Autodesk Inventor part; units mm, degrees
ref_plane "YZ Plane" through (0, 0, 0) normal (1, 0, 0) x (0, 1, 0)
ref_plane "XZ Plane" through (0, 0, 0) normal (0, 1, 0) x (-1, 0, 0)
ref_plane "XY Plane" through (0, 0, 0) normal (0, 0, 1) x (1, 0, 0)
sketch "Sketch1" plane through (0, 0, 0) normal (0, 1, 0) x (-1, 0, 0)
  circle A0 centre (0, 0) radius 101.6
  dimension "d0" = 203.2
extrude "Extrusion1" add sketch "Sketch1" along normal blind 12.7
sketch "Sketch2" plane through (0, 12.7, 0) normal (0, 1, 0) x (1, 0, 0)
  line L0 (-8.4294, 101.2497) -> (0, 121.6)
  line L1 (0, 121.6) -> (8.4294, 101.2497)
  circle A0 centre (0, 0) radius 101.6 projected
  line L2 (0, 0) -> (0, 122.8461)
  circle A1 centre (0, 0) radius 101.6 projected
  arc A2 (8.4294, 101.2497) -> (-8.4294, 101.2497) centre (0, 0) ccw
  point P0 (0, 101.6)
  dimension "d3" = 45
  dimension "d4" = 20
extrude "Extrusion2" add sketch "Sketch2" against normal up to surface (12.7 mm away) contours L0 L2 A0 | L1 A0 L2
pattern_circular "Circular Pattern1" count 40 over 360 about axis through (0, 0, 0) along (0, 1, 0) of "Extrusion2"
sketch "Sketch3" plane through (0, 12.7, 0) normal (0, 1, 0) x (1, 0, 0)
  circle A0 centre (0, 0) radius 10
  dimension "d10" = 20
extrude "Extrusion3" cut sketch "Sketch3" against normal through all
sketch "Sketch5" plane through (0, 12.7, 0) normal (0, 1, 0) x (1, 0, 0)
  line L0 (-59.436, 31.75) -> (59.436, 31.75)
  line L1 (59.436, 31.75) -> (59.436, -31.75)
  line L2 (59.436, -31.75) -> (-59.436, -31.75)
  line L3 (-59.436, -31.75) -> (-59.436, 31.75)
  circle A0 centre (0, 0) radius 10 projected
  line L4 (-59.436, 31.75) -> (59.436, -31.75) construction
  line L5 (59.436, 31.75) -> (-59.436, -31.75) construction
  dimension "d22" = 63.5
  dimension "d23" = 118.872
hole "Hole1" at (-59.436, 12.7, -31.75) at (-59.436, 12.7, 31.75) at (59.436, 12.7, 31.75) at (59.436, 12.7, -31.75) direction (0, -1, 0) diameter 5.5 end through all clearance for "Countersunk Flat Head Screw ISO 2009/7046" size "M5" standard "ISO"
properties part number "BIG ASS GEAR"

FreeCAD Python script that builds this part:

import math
import FreeCAD as App
import Part
import Sketcher
Q = App.Units.Quantity

doc = App.newDocument("Part")
body = doc.addObject("PartDesign::Body", "Body")

# Sketch on XZ plane
sketch1 = doc.addObject("Sketcher::SketchObject", "Sketch")
body.addObject(sketch1)
sketch1.AttachmentSupport = (doc.XZ_Plane, [""])
sketch1.MapMode = "FlatFace"
sketch1.addGeometry(Part.Circle(App.Vector(0, 0, 0), App.Vector(0, 0, 1), 102), False)
sketch1.addConstraint([
    Sketcher.Constraint("Coincident", 0, 3, -1, 1),
    Sketcher.Constraint("Diameter", 0, Q("203.2 mm")),
])
pad1 = doc.addObject("PartDesign::Pad", "Pad")
body.addObject(pad1)
pad1.Profile = sketch1
pad1.Length = 12.7
pad1.Reversed = True

# Sketch on XZ plane
sketch2 = doc.addObject("Sketcher::SketchObject", "Sketch001")
body.addObject(sketch2)
sketch2.AttachmentSupport = (doc.XZ_Plane, [""])
sketch2.MapMode = "FlatFace"
sketch2.AttachmentOffset = App.Placement(App.Vector(0, 0, -12.7), App.Rotation())
sketch2.addGeometry([
    Part.LineSegment(App.Vector(0, -122, 0), App.Vector(-8, -101, 0)),
    Part.ArcOfCircle(Part.Circle(App.Vector(0, 0, 0), App.Vector(0, 0, 1), 102), math.radians(-94.76), math.radians(-85.24)),
    Part.LineSegment(App.Vector(8, -101, 0), App.Vector(0, -122, 0)),
], False)
sketch2.addConstraint([
    Sketcher.Constraint("Coincident", 0, 2, 1, 1),
    Sketcher.Constraint("Coincident", 1, 2, 2, 1),
    Sketcher.Constraint("Coincident", 2, 2, 0, 1),
    Sketcher.Constraint("Coincident", 1, 3, -1, 1),
    Sketcher.Constraint("PointOnObject", 2, 2, -2),
    Sketcher.Constraint("Horizontal", 0, 2, 1, 2),
    Sketcher.Constraint("Radius", 1, Q("101.6 mm")),
    Sketcher.Constraint("Angle", 0, Q("112.5 deg")),
    Sketcher.Constraint("DistanceY", 2, 2, -1, 1, Q("121.6 mm")),
])
pad2 = doc.addObject("PartDesign::Pad", "Pad001")
body.addObject(pad2)
pad2.Profile = sketch2
pad2.Length = 12.7
doc.recompute()

polarpattern = doc.addObject("PartDesign::PolarPattern", "PolarPattern")
body.addObject(polarpattern)
polarpattern.Originals = [pad2]
polarpattern.Axis = (doc.Y_Axis, [""])
polarpattern.Angle = 360
polarpattern.Occurrences = 40
body.Tip = polarpattern

# Sketch on XZ plane
sketch3 = doc.addObject("Sketcher::SketchObject", "Sketch002")
body.addObject(sketch3)
sketch3.AttachmentSupport = (doc.XZ_Plane, [""])
sketch3.MapMode = "FlatFace"
sketch3.AttachmentOffset = App.Placement(App.Vector(0, 0, -12.7), App.Rotation())
sketch3.addGeometry(Part.Circle(App.Vector(0, 0, 0), App.Vector(0, 0, 1), 10), False)
sketch3.addConstraint([
    Sketcher.Constraint("Coincident", 0, 3, -1, 1),
    Sketcher.Constraint("Diameter", 0, Q("20 mm")),
])
pocket1 = doc.addObject("PartDesign::Pocket", "Pocket")
body.addObject(pocket1)
pocket1.Profile = sketch3
pocket1.Type = "ThroughAll"
pocket1.Reversed = True

# Sketch on XZ plane
sketch4 = doc.addObject("Sketcher::SketchObject", "Sketch003")
body.addObject(sketch4)
sketch4.AttachmentSupport = (doc.XZ_Plane, [""])
sketch4.MapMode = "FlatFace"
sketch4.AttachmentOffset = App.Placement(App.Vector(0, 0, -12.7), App.Rotation())
sketch4.addGeometry([
    Part.Circle(App.Vector(-59.4, -31.8, 0), App.Vector(0, 0, 1), 2.8),
    Part.Circle(App.Vector(-59.4, 31.8, 0), App.Vector(0, 0, 1), 2.8),
    Part.Circle(App.Vector(59.4, 31.8, 0), App.Vector(0, 0, 1), 2.8),
    Part.Circle(App.Vector(59.4, -31.8, 0), App.Vector(0, 0, 1), 2.8),
], False)
sketch4.addConstraint([
    Sketcher.Constraint("Equal", 0, 1),
    Sketcher.Constraint("Equal", 1, 2),
    Sketcher.Constraint("Equal", 2, 3),
    Sketcher.Constraint("Symmetric", 0, 3, 2, 3, -1, 1),
    Sketcher.Constraint("Symmetric", 1, 3, 3, 3, -1, 1),
    Sketcher.Constraint("Symmetric", 1, 3, 2, 3, -2),
    Sketcher.Constraint("Diameter", 0, Q("5.5 mm")),
    Sketcher.Constraint("DistanceY", 0, 3, 1, 3, Q("63.5 mm")),
    Sketcher.Constraint("DistanceX", 0, 3, -1, 1, Q("59.436 mm")),
])
doc.recompute()
hole = doc.addObject("PartDesign::Hole", "Hole")
body.addObject(hole)
hole.Profile = sketch4
hole.ThreadType = "None"
hole.Diameter = 5.5
hole.DepthType = "ThroughAll"
hole.Reversed = True

doc.recompute()
